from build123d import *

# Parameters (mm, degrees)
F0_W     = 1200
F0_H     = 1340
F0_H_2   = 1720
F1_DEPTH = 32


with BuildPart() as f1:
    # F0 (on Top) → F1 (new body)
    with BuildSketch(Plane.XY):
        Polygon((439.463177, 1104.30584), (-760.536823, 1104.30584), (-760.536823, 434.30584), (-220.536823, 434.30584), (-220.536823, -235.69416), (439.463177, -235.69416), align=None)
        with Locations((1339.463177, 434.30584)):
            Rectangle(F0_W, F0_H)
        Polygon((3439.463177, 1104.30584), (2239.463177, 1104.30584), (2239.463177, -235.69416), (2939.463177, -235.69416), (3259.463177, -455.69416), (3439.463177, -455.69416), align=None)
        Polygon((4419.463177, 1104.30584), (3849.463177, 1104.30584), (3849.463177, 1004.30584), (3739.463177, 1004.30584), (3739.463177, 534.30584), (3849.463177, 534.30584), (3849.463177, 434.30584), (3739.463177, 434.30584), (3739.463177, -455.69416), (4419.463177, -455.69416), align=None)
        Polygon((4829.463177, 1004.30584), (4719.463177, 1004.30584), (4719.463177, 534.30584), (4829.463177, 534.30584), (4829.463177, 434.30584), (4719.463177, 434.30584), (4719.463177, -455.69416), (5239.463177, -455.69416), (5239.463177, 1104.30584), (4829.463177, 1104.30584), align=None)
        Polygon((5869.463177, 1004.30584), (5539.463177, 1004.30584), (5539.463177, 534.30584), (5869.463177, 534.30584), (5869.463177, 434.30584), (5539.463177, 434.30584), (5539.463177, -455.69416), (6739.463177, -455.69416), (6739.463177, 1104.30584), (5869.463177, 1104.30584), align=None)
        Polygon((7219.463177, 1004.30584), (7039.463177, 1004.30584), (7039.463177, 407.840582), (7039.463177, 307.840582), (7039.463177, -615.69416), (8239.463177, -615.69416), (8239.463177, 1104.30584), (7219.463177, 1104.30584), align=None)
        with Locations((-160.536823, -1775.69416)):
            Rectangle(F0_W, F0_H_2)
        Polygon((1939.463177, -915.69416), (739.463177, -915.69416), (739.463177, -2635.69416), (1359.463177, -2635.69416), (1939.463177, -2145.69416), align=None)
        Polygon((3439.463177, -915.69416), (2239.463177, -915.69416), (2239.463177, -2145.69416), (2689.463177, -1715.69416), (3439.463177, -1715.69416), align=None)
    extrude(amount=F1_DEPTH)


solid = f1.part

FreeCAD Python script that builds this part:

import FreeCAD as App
import Part
import Sketcher
from FreeCAD import Vector
Q = App.Units.Quantity

doc = App.newDocument("Part")
params = doc.addObject("Spreadsheet::Sheet", "Params")
for row, (alias, value) in enumerate([
    ("sketch1_width", "1200 mm"),
    ("sketch1_width2", "540 mm"),
    ("sketch1_width3", "700 mm"),
    ("sketch1_width4", "180 mm"),
    ("sketch1_width5", "570 mm"),
    ("pad1_length", "32 mm"),
], start=1):
    params.set(f"A{row}", alias)
    params.set(f"B{row}", "=" + value)
    params.setAlias(f"B{row}", alias)

body = doc.addObject("PartDesign::Body", "Body")
body.AllowCompound = True

# Sketch on XY plane
sketch1 = body.newObject("Sketcher::SketchObject", "Sketch")
sketch1.AttachmentSupport = (doc.getObject("XY_Plane"), [""])
sketch1.MapMode = "FlatFace"
sketch1.addGeometry(Part.LineSegment(Vector(439, 1104, 0), Vector(-761, 1104, 0)), False)
sketch1.addGeometry(Part.LineSegment(Vector(-761, 1104, 0), Vector(-761, 434, 0)), False)
sketch1.addGeometry(Part.LineSegment(Vector(-761, 434, 0), Vector(-221, 434, 0)), False)
sketch1.addGeometry(Part.LineSegment(Vector(-221, 434, 0), Vector(-221, -236, 0)), False)
sketch1.addGeometry(Part.LineSegment(Vector(-221, -236, 0), Vector(439, -236, 0)), False)
sketch1.addGeometry(Part.LineSegment(Vector(439, -236, 0), Vector(439, 1104, 0)), False)
sketch1.addGeometry(Part.LineSegment(Vector(739, 1104, 0), Vector(739, -236, 0)), False)
sketch1.addGeometry(Part.LineSegment(Vector(739, -236, 0), Vector(1939, -236, 0)), False)
sketch1.addGeometry(Part.LineSegment(Vector(1939, -236, 0), Vector(1939, 1104, 0)), False)
sketch1.addGeometry(Part.LineSegment(Vector(1939, 1104, 0), Vector(739, 1104, 0)), False)
sketch1.addGeometry(Part.LineSegment(Vector(3439, 1104, 0), Vector(2239, 1104, 0)), False)
sketch1.addGeometry(Part.LineSegment(Vector(2239, 1104, 0), Vector(2239, -236, 0)), False)
sketch1.addGeometry(Part.LineSegment(Vector(2239, -236, 0), Vector(2939, -236, 0)), False)
sketch1.addGeometry(Part.LineSegment(Vector(2939, -236, 0), Vector(3259, -456, 0)), False)
sketch1.addGeometry(Part.LineSegment(Vector(3259, -456, 0), Vector(3439, -456, 0)), False)
sketch1.addGeometry(Part.LineSegment(Vector(3439, -456, 0), Vector(3439, 1104, 0)), False)
sketch1.addGeometry(Part.LineSegment(Vector(4419, 1104, 0), Vector(3849, 1104, 0)), False)
sketch1.addGeometry(Part.LineSegment(Vector(3849, 1104, 0), Vector(3849, 1004, 0)), False)
sketch1.addGeometry(Part.LineSegment(Vector(3849, 1004, 0), Vector(3739, 1004, 0)), False)
sketch1.addGeometry(Part.LineSegment(Vector(3739, 1004, 0), Vector(3739, 534, 0)), False)
sketch1.addGeometry(Part.LineSegment(Vector(3739, 534, 0), Vector(3849, 534, 0)), False)
sketch1.addGeometry(Part.LineSegment(Vector(3849, 534, 0), Vector(3849, 434, 0)), False)
sketch1.addGeometry(Part.LineSegment(Vector(3849, 434, 0), Vector(3739, 434, 0)), False)
sketch1.addGeometry(Part.LineSegment(Vector(3739, 434, 0), Vector(3739, -456, 0)), False)
sketch1.addGeometry(Part.LineSegment(Vector(3739, -456, 0), Vector(4419, -456, 0)), False)
sketch1.addGeometry(Part.LineSegment(Vector(4419, -456, 0), Vector(4419, 1104, 0)), False)
sketch1.addGeometry(Part.LineSegment(Vector(4829, 1004, 0), Vector(4719, 1004, 0)), False)
sketch1.addGeometry(Part.LineSegment(Vector(4719, 1004, 0), Vector(4719, 534, 0)), False)
sketch1.addGeometry(Part.LineSegment(Vector(4719, 534, 0), Vector(4829, 534, 0)), False)
sketch1.addGeometry(Part.LineSegment(Vector(4829, 534, 0), Vector(4829, 434, 0)), False)
sketch1.addGeometry(Part.LineSegment(Vector(4829, 434, 0), Vector(4719, 434, 0)), False)
sketch1.addGeometry(Part.LineSegment(Vector(4719, 434, 0), Vector(4719, -456, 0)), False)
sketch1.addGeometry(Part.LineSegment(Vector(4719, -456, 0), Vector(5239, -456, 0)), False)
sketch1.addGeometry(Part.LineSegment(Vector(5239, -456, 0), Vector(5239, 1104, 0)), False)
sketch1.addGeometry(Part.LineSegment(Vector(5239, 1104, 0), Vector(4829, 1104, 0)), False)
sketch1.addGeometry(Part.LineSegment(Vector(4829, 1104, 0), Vector(4829, 1004, 0)), False)
sketch1.addGeometry(Part.LineSegment(Vector(5869, 1004, 0), Vector(5539, 1004, 0)), False)
sketch1.addGeometry(Part.LineSegment(Vector(5539, 1004, 0), Vector(5539, 534, 0)), False)
sketch1.addGeometry(Part.LineSegment(Vector(5539, 534, 0), Vector(5869, 534, 0)), False)
sketch1.addGeometry(Part.LineSegment(Vector(5869, 534, 0), Vector(5869, 434, 0)), False)
sketch1.addGeometry(Part.LineSegment(Vector(5869, 434, 0), Vector(5539, 434, 0)), False)
sketch1.addGeometry(Part.LineSegment(Vector(5539, 434, 0), Vector(5539, -456, 0)), False)
sketch1.addGeometry(Part.LineSegment(Vector(5539, -456, 0), Vector(6739, -456, 0)), False)
sketch1.addGeometry(Part.LineSegment(Vector(6739, -456, 0), Vector(6739, 1104, 0)), False)
sketch1.addGeometry(Part.LineSegment(Vector(6739, 1104, 0), Vector(5869, 1104, 0)), False)
sketch1.addGeometry(Part.LineSegment(Vector(5869, 1104, 0), Vector(5869, 1004, 0)), False)
sketch1.addGeometry(Part.LineSegment(Vector(7219, 1004, 0), Vector(7039, 1004, 0)), False)
sketch1.addGeometry(Part.LineSegment(Vector(7039, 1004, 0), Vector(7039, -616, 0)), False)
sketch1.addGeometry(Part.LineSegment(Vector(7039, -616, 0), Vector(8239, -616, 0)), False)
sketch1.addGeometry(Part.LineSegment(Vector(8239, -616, 0), Vector(8239, 1104, 0)), False)
sketch1.addGeometry(Part.LineSegment(Vector(8239, 1104, 0), Vector(7219, 1104, 0)), False)
sketch1.addGeometry(Part.LineSegment(Vector(7219, 1104, 0), Vector(7219, 1004, 0)), False)
sketch1.addGeometry(Part.LineSegment(Vector(-761, -916, 0), Vector(-761, -2636, 0)), False)
sketch1.addGeometry(Part.LineSegment(Vector(-761, -2636, 0), Vector(439, -2636, 0)), False)
sketch1.addGeometry(Part.LineSegment(Vector(439, -2636, 0), Vector(439, -916, 0)), False)
sketch1.addGeometry(Part.LineSegment(Vector(439, -916, 0), Vector(-761, -916, 0)), False)
sketch1.addGeometry(Part.LineSegment(Vector(1939, -916, 0), Vector(739, -916, 0)), False)
sketch1.addGeometry(Part.LineSegment(Vector(739, -916, 0), Vector(739, -2636, 0)), False)
sketch1.addGeometry(Part.LineSegment(Vector(739, -2636, 0), Vector(1359, -2636, 0)), False)
sketch1.addGeometry(Part.LineSegment(Vector(1359, -2636, 0), Vector(1939, -2146, 0)), False)
sketch1.addGeometry(Part.LineSegment(Vector(1939, -2146, 0), Vector(1939, -916, 0)), False)
sketch1.addGeometry(Part.LineSegment(Vector(3439, -916, 0), Vector(2239, -916, 0)), False)
sketch1.addGeometry(Part.LineSegment(Vector(2239, -916, 0), Vector(2239, -2146, 0)), False)
sketch1.addGeometry(Part.LineSegment(Vector(2239, -2146, 0), Vector(2689, -1716, 0)), False)
sketch1.addGeometry(Part.LineSegment(Vector(2689, -1716, 0), Vector(3439, -1716, 0)), False)
sketch1.addGeometry(Part.LineSegment(Vector(3439, -1716, 0), Vector(3439, -916, 0)), False)
sketch1.addConstraint(Sketcher.Constraint("Coincident", 0, 2, 1, 1))
sketch1.addConstraint(Sketcher.Constraint("Coincident", 1, 2, 2, 1))
sketch1.addConstraint(Sketcher.Constraint("Coincident", 2, 2, 3, 1))
sketch1.addConstraint(Sketcher.Constraint("Coincident", 3, 2, 4, 1))
sketch1.addConstraint(Sketcher.Constraint("Coincident", 4, 2, 5, 1))
sketch1.addConstraint(Sketcher.Constraint("Coincident", 5, 2, 0, 1))
sketch1.addConstraint(Sketcher.Constraint("Coincident", 6, 2, 7, 1))
sketch1.addConstraint(Sketcher.Constraint("Coincident", 7, 2, 8, 1))
sketch1.addConstraint(Sketcher.Constraint("Coincident", 8, 2, 9, 1))
sketch1.addConstraint(Sketcher.Constraint("Coincident", 9, 2, 6, 1))
sketch1.addConstraint(Sketcher.Constraint("Coincident", 10, 2, 11, 1))
sketch1.addConstraint(Sketcher.Constraint("Coincident", 11, 2, 12, 1))
sketch1.addConstraint(Sketcher.Constraint("Coincident", 12, 2, 13, 1))
sketch1.addConstraint(Sketcher.Constraint("Coincident", 13, 2, 14, 1))
sketch1.addConstraint(Sketcher.Constraint("Coincident", 14, 2, 15, 1))
sketch1.addConstraint(Sketcher.Constraint("Coincident", 15, 2, 10, 1))
sketch1.addConstraint(Sketcher.Constraint("Coincident", 16, 2, 17, 1))
sketch1.addConstraint(Sketcher.Constraint("Coincident", 17, 2, 18, 1))
sketch1.addConstraint(Sketcher.Constraint("Coincident", 18, 2, 19, 1))
sketch1.addConstraint(Sketcher.Constraint("Coincident", 19, 2, 20, 1))
sketch1.addConstraint(Sketcher.Constraint("Coincident", 20, 2, 21, 1))
sketch1.addConstraint(Sketcher.Constraint("Coincident", 21, 2, 22, 1))
sketch1.addConstraint(Sketcher.Constraint("Coincident", 22, 2, 23, 1))
sketch1.addConstraint(Sketcher.Constraint("Coincident", 23, 2, 24, 1))
sketch1.addConstraint(Sketcher.Constraint("Coincident", 24, 2, 25, 1))
sketch1.addConstraint(Sketcher.Constraint("Coincident", 25, 2, 16, 1))
sketch1.addConstraint(Sketcher.Constraint("Coincident", 26, 2, 27, 1))
sketch1.addConstraint(Sketcher.Constraint("Coincident", 27, 2, 28, 1))
sketch1.addConstraint(Sketcher.Constraint("Coincident", 28, 2, 29, 1))
sketch1.addConstraint(Sketcher.Constraint("Coincident", 29, 2, 30, 1))
sketch1.addConstraint(Sketcher.Constraint("Coincident", 30, 2, 31, 1))
sketch1.addConstraint(Sketcher.Constraint("Coincident", 31, 2, 32, 1))
sketch1.addConstraint(Sketcher.Constraint("Coincident", 32, 2, 33, 1))
sketch1.addConstraint(Sketcher.Constraint("Coincident", 33, 2, 34, 1))
sketch1.addConstraint(Sketcher.Constraint("Coincident", 34, 2, 35, 1))
sketch1.addConstraint(Sketcher.Constraint("Coincident", 35, 2, 26, 1))
sketch1.addConstraint(Sketcher.Constraint("Coincident", 36, 2, 37, 1))
sketch1.addConstraint(Sketcher.Constraint("Coincident", 37, 2, 38, 1))
sketch1.addConstraint(Sketcher.Constraint("Coincident", 38, 2, 39, 1))
sketch1.addConstraint(Sketcher.Constraint("Coincident", 39, 2, 40, 1))
sketch1.addConstraint(Sketcher.Constraint("Coincident", 40, 2, 41, 1))
sketch1.addConstraint(Sketcher.Constraint("Coincident", 41, 2, 42, 1))
sketch1.addConstraint(Sketcher.Constraint("Coincident", 42, 2, 43, 1))
sketch1.addConstraint(Sketcher.Constraint("Coincident", 43, 2, 44, 1))
sketch1.addConstraint(Sketcher.Constraint("Coincident", 44, 2, 45, 1))
sketch1.addConstraint(Sketcher.Constraint("Coincident", 45, 2, 36, 1))
sketch1.addConstraint(Sketcher.Constraint("Coincident", 46, 2, 47, 1))
sketch1.addConstraint(Sketcher.Constraint("Coincident", 47, 2, 48, 1))
sketch1.addConstraint(Sketcher.Constraint("Coincident", 48, 2, 49, 1))
sketch1.addConstraint(Sketcher.Constraint("Coincident", 49, 2, 50, 1))
sketch1.addConstraint(Sketcher.Constraint("Coincident", 50, 2, 51, 1))
sketch1.addConstraint(Sketcher.Constraint("Coincident", 51, 2, 46, 1))
sketch1.addConstraint(Sketcher.Constraint("Coincident", 52, 2, 53, 1))
sketch1.addConstraint(Sketcher.Constraint("Coincident", 53, 2, 54, 1))
sketch1.addConstraint(Sketcher.Constraint("Coincident", 54, 2, 55, 1))
sketch1.addConstraint(Sketcher.Constraint("Coincident", 55, 2, 52, 1))
sketch1.addConstraint(Sketcher.Constraint("Coincident", 56, 2, 57, 1))
sketch1.addConstraint(Sketcher.Constraint("Coincident", 57, 2, 58, 1))
sketch1.addConstraint(Sketcher.Constraint("Coincident", 58, 2, 59, 1))
sketch1.addConstraint(Sketcher.Constraint("Coincident", 59, 2, 60, 1))
sketch1.addConstraint(Sketcher.Constraint("Coincident", 60, 2, 56, 1))
sketch1.addConstraint(Sketcher.Constraint("Coincident", 61, 2, 62, 1))
sketch1.addConstraint(Sketcher.Constraint("Coincident", 62, 2, 63, 1))
sketch1.addConstraint(Sketcher.Constraint("Coincident", 63, 2, 64, 1))
sketch1.addConstraint(Sketcher.Constraint("Coincident", 64, 2, 65, 1))
sketch1.addConstraint(Sketcher.Constraint("Coincident", 65, 2, 61, 1))
sketch1.addConstraint(Sketcher.Constraint("Horizontal", 0))
sketch1.addConstraint(Sketcher.Constraint("Vertical", 1))
sketch1.addConstraint(Sketcher.Constraint("Horizontal", 2))
sketch1.addConstraint(Sketcher.Constraint("Vertical", 3))
sketch1.addConstraint(Sketcher.Constraint("Horizontal", 4))
sketch1.addConstraint(Sketcher.Constraint("Vertical", 5))
sketch1.addConstraint(Sketcher.Constraint("Vertical", 6))
sketch1.addConstraint(Sketcher.Constraint("Horizontal", 7))
sketch1.addConstraint(Sketcher.Constraint("Vertical", 8))
sketch1.addConstraint(Sketcher.Constraint("Horizontal", 9))
sketch1.addConstraint(Sketcher.Constraint("Horizontal", 10))
sketch1.addConstraint(Sketcher.Constraint("Vertical", 11))
sketch1.addConstraint(Sketcher.Constraint("Horizontal", 12))
sketch1.addConstraint(Sketcher.Constraint("Horizontal", 14))
sketch1.addConstraint(Sketcher.Constraint("Vertical", 15))
sketch1.addConstraint(Sketcher.Constraint("Horizontal", 16))
sketch1.addConstraint(Sketcher.Constraint("Vertical", 17))
sketch1.addConstraint(Sketcher.Constraint("Horizontal", 18))
sketch1.addConstraint(Sketcher.Constraint("Vertical", 19))
sketch1.addConstraint(Sketcher.Constraint("Horizontal", 20))
sketch1.addConstraint(Sketcher.Constraint("Vertical", 21))
sketch1.addConstraint(Sketcher.Constraint("Horizontal", 22))
sketch1.addConstraint(Sketcher.Constraint("Vertical", 23))
sketch1.addConstraint(Sketcher.Constraint("Horizontal", 24))
sketch1.addConstraint(Sketcher.Constraint("Vertical", 25))
sketch1.addConstraint(Sketcher.Constraint("Horizontal", 26))
sketch1.addConstraint(Sketcher.Constraint("Vertical", 27))
sketch1.addConstraint(Sketcher.Constraint("Horizontal", 28))
sketch1.addConstraint(Sketcher.Constraint("Vertical", 29))
sketch1.addConstraint(Sketcher.Constraint("Horizontal", 30))
sketch1.addConstraint(Sketcher.Constraint("Vertical", 31))
sketch1.addConstraint(Sketcher.Constraint("Horizontal", 32))
sketch1.addConstraint(Sketcher.Constraint("Vertical", 33))
sketch1.addConstraint(Sketcher.Constraint("Horizontal", 34))
sketch1.addConstraint(Sketcher.Constraint("Vertical", 35))
sketch1.addConstraint(Sketcher.Constraint("Horizontal", 36))
sketch1.addConstraint(Sketcher.Constraint("Vertical", 37))
sketch1.addConstraint(Sketcher.Constraint("Horizontal", 38))
sketch1.addConstraint(Sketcher.Constraint("Vertical", 39))
sketch1.addConstraint(Sketcher.Constraint("Horizontal", 40))
sketch1.addConstraint(Sketcher.Constraint("Vertical", 41))
sketch1.addConstraint(Sketcher.Constraint("Horizontal", 42))
sketch1.addConstraint(Sketcher.Constraint("Vertical", 43))
sketch1.addConstraint(Sketcher.Constraint("Horizontal", 44))
sketch1.addConstraint(Sketcher.Constraint("Vertical", 45))
sketch1.addConstraint(Sketcher.Constraint("Horizontal", 46))
sketch1.addConstraint(Sketcher.Constraint("Vertical", 47))
sketch1.addConstraint(Sketcher.Constraint("Horizontal", 48))
sketch1.addConstraint(Sketcher.Constraint("Vertical", 49))
sketch1.addConstraint(Sketcher.Constraint("Horizontal", 50))
sketch1.addConstraint(Sketcher.Constraint("Vertical", 51))
sketch1.addConstraint(Sketcher.Constraint("Vertical", 52))
sketch1.addConstraint(Sketcher.Constraint("Horizontal", 53))
sketch1.addConstraint(Sketcher.Constraint("Vertical", 54))
sketch1.addConstraint(Sketcher.Constraint("Horizontal", 55))
sketch1.addConstraint(Sketcher.Constraint("Horizontal", 56))
sketch1.addConstraint(Sketcher.Constraint("Vertical", 57))
sketch1.addConstraint(Sketcher.Constraint("Horizontal", 58))
sketch1.addConstraint(Sketcher.Constraint("Vertical", 60))
sketch1.addConstraint(Sketcher.Constraint("Horizontal", 61))
sketch1.addConstraint(Sketcher.Constraint("Vertical", 62))
sketch1.addConstraint(Sketcher.Constraint("Horizontal", 64))
sketch1.addConstraint(Sketcher.Constraint("Vertical", 65))
sketch1.addConstraint(Sketcher.Constraint("Horizontal", 4, 2, 6, 2))
sketch1.addConstraint(Sketcher.Constraint("Horizontal", 5, 2, 8, 2))
sketch1.addConstraint(Sketcher.Constraint("Horizontal", 9, 2, 10, 2))
sketch1.addConstraint(Sketcher.Constraint("Horizontal", 7, 2, 11, 2))
sketch1.addConstraint(Sketcher.Constraint("Horizontal", 15, 2, 16, 2))
sketch1.addConstraint(Sketcher.Constraint("Horizontal", 2, 2, 21, 2))
sketch1.addConstraint(Sketcher.Constraint("Horizontal", 14, 2, 23, 2))
sketch1.addConstraint(Sketcher.Constraint("Horizontal", 18, 2, 26, 2))
sketch1.addConstraint(Sketcher.Constraint("Horizontal", 20, 2, 27, 2))
sketch1.addConstraint(Sketcher.Constraint("Horizontal", 22, 2, 29, 2))
sketch1.addConstraint(Sketcher.Constraint("Horizontal", 24, 2, 31, 2))
sketch1.addConstraint(Sketcher.Constraint("Horizontal", 25, 2, 33, 2))
sketch1.addConstraint(Sketcher.Constraint("Horizontal", 35, 2, 36, 2))
sketch1.addConstraint(Sketcher.Constraint("Horizontal", 28, 2, 37, 2))
sketch1.addConstraint(Sketcher.Constraint("Horizontal", 30, 2, 39, 2))
sketch1.addConstraint(Sketcher.Constraint("Horizontal", 32, 2, 41, 2))
sketch1.addConstraint(Sketcher.Constraint("Horizontal", 34, 2, 43, 2))
sketch1.addConstraint(Sketcher.Constraint("Horizontal", 45, 2, 46, 2))
sketch1.addConstraint(Sketcher.Constraint("Horizontal", 44, 2, 49, 2))
sketch1.addConstraint(Sketcher.Constraint("Horizontal", 55, 2, 56, 2))
sketch1.addConstraint(Sketcher.Constraint("Horizontal", 53, 2, 57, 2))
sketch1.addConstraint(Sketcher.Constraint("Horizontal", 60, 2, 61, 2))
sketch1.addConstraint(Sketcher.Constraint("Horizontal", 59, 2, 62, 2))
sketch1.addConstraint(Sketcher.Constraint("Vertical", 17, 2, 20, 2))
sketch1.addConstraint(Sketcher.Constraint("Vertical", 19, 2, 22, 2))
sketch1.addConstraint(Sketcher.Constraint("Vertical", 27, 2, 30, 2))
sketch1.addConstraint(Sketcher.Constraint("Vertical", 29, 2, 34, 2))
sketch1.addConstraint(Sketcher.Constraint("Vertical", 37, 2, 40, 2))
sketch1.addConstraint(Sketcher.Constraint("Vertical", 39, 2, 44, 2))
sketch1.addConstraint(Sketcher.Constraint("Vertical", 1, 2, 52, 2))
sketch1.addConstraint(Sketcher.Constraint("Vertical", 5, 2, 53, 2))
sketch1.addConstraint(Sketcher.Constraint("Vertical", 9, 2, 56, 2))
sketch1.addConstraint(Sketcher.Constraint("Vertical", 8, 2, 59, 2))
sketch1.addConstraint(Sketcher.Constraint("Vertical", 11, 2, 61, 2))
sketch1.addConstraint(Sketcher.Constraint("Vertical", 15, 2, 64, 2))
sketch1.addConstraint(Sketcher.Constraint("Equal", 0, 7))
sketch1.addConstraint(Sketcher.Constraint("Equal", 9, 10))
sketch1.addConstraint(Sketcher.Constraint("Equal", 22, 26))
sketch1.addConstraint(Sketcher.Constraint("Equal", 10, 42))
sketch1.addConstraint(Sketcher.Constraint("Equal", 14, 46))
sketch1.addConstraint(Sketcher.Constraint("Equal", 42, 48))
sketch1.addConstraint(Sketcher.Constraint("Equal", 1, 3))
sketch1.addConstraint(Sketcher.Constraint("Equal", 17, 21))
sketch1.addConstraint(Sketcher.Constraint("Equal", 49, 52))
sketch1.addConstraint(Sketcher.Constraint("DistanceX", 0, 2, 0, 1, Q("1200 mm")))
sketch1.addConstraint(Sketcher.Constraint("DistanceX", 2, 1, 2, 2, Q("540 mm")))
sketch1.addConstraint(Sketcher.Constraint("DistanceX", 12, 1, 12, 2, Q("700 mm")))
sketch1.addConstraint(Sketcher.Constraint("DistanceX", 14, 1, 14, 2, Q("180 mm")))
sketch1.addConstraint(Sketcher.Constraint("DistanceX", 16, 2, 16, 1, Q("570 mm")))
sketch1.addConstraint(Sketcher.Constraint("DistanceX", 18, 2, 18, 1, Q("110 mm")))
sketch1.addConstraint(Sketcher.Constraint("DistanceX", 32, 1, 32, 2, Q("520 mm")))
sketch1.addConstraint(Sketcher.Constraint("DistanceX", 36, 2, 36, 1, Q("330 mm")))
sketch1.addConstraint(Sketcher.Constraint("DistanceX", 58, 1, 58, 2, Q("620 mm")))
sketch1.addConstraint(Sketcher.Constraint("DistanceX", 64, 1, 64, 2, Q("750 mm")))
sketch1.addConstraint(Sketcher.Constraint("DistanceY", 1, 2, 1, 1, Q("670 mm")))
sketch1.addConstraint(Sketcher.Constraint("DistanceY", 15, 1, 15, 2, Q("1560 mm")))
sketch1.addConstraint(Sketcher.Constraint("DistanceY", 17, 2, 17, 1, Q("100 mm")))
sketch1.addConstraint(Sketcher.Constraint("DistanceY", 47, 2, 47, 1, Q("1620 mm")))
sketch1.addConstraint(Sketcher.Constraint("DistanceY", 60, 1, 60, 2, Q("1230 mm")))
sketch1.addConstraint(Sketcher.Constraint("DistanceY", 65, 1, 65, 2, Q("800 mm")))
sketch1.addConstraint(Sketcher.Constraint("DistanceY", -1, 1, 0, 2, Q("1104.30584 mm")))
sketch1.addConstraint(Sketcher.Constraint("DistanceY", 52, 2, -1, 1, Q("2635.69416 mm")))
sketch1.addConstraint(Sketcher.Constraint("DistanceX", 0, 2, -1, 1, Q("760.536823 mm")))
sketch1.addConstraint(Sketcher.Constraint("DistanceX", -1, 1, 6, 2, Q("739.463177 mm")))
sketch1.addConstraint(Sketcher.Constraint("DistanceX", -1, 1, 10, 2, Q("2239.463177 mm")))
sketch1.addConstraint(Sketcher.Constraint("DistanceX", -1, 1, 16, 2, Q("3849.463177 mm")))
sketch1.addConstraint(Sketcher.Constraint("DistanceX", -1, 1, 26, 2, Q("4719.463177 mm")))
sketch1.addConstraint(Sketcher.Constraint("DistanceX", -1, 1, 36, 2, Q("5539.463177 mm")))
sketch1.addConstraint(Sketcher.Constraint("DistanceX", -1, 1, 46, 2, Q("7039.463177 mm")))
sketch1.setExpression("Constraints[173]", "Params.sketch1_width")
sketch1.setExpression("Constraints[174]", "Params.sketch1_width2")
sketch1.setExpression("Constraints[175]", "Params.sketch1_width3")
sketch1.setExpression("Constraints[176]", "Params.sketch1_width4")
sketch1.setExpression("Constraints[177]", "Params.sketch1_width5")
pad1 = body.newObject("PartDesign::Pad", "Pad")
pad1.Profile = sketch1
pad1.setExpression("Length", "Params.pad1_length")

doc.recompute()
